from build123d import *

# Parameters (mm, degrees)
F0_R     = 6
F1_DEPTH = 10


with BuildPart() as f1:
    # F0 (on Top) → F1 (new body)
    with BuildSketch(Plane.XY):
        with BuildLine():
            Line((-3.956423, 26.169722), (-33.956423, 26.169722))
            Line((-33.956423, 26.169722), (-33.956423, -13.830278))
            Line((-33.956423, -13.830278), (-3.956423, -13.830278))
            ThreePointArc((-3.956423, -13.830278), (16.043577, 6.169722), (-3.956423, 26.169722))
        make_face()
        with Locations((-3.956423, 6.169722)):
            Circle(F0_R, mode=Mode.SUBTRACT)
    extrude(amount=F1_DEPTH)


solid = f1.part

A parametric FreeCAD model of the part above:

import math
import FreeCAD as App
import Part
import Sketcher
from FreeCAD import Vector
Q = App.Units.Quantity

doc = App.newDocument("Part")
body = doc.addObject("PartDesign::Body", "Body")

# Sketch on XY plane
sketch1 = doc.addObject("Sketcher::SketchObject", "Sketch")
body.addObject(sketch1)
sketch1.AttachmentSupport = (doc.XY_Plane, [""])
sketch1.MapMode = "FlatFace"
sketch1.addGeometry(Part.LineSegment(Vector(-4, 26, 0), Vector(-34, 26, 0)), False)
sketch1.addGeometry(Part.LineSegment(Vector(-34, 26, 0), Vector(-34, -14, 0)), False)
sketch1.addGeometry(Part.LineSegment(Vector(-34, -14, 0), Vector(-4, -14, 0)), False)
sketch1.addGeometry(Part.ArcOfCircle(Part.Circle(Vector(-4, 6, 0), Vector(0, 0, 1), 20), math.radians(-90), math.radians(90)), False)
sketch1.addGeometry(Part.Circle(Vector(-4, 6, 0), Vector(0, 0, 1), 6), False)
sketch1.addConstraint(Sketcher.Constraint("Coincident", 0, 2, 1, 1))
sketch1.addConstraint(Sketcher.Constraint("Coincident", 1, 2, 2, 1))
sketch1.addConstraint(Sketcher.Constraint("Tangent", 2, 2, 3, 1))
sketch1.addConstraint(Sketcher.Constraint("Tangent", 3, 2, 0, 1))
sketch1.addConstraint(Sketcher.Constraint("Horizontal", 0))
sketch1.addConstraint(Sketcher.Constraint("Vertical", 1))
sketch1.addConstraint(Sketcher.Constraint("Horizontal", 2))
sketch1.addConstraint(Sketcher.Constraint("Coincident", 4, 3, 3, 3))
sketch1.addConstraint(Sketcher.Constraint("Diameter", 4, Q("12 mm")))
sketch1.addConstraint(Sketcher.Constraint("Radius", 3, Q("20 mm")))
sketch1.addConstraint(Sketcher.Constraint("DistanceX", 0, 2, 0, 1, Q("30 mm")))
sketch1.addConstraint(Sketcher.Constraint("DistanceY", -1, 1, 0, 2, Q("26.169722 mm")))
sketch1.addConstraint(Sketcher.Constraint("DistanceX", 3, 3, -1, 1, Q("3.956423 mm")))
pad1 = doc.addObject("PartDesign::Pad", "Pad")
body.addObject(pad1)
pad1.Profile = sketch1
pad1.Length = 10

doc.recompute()
